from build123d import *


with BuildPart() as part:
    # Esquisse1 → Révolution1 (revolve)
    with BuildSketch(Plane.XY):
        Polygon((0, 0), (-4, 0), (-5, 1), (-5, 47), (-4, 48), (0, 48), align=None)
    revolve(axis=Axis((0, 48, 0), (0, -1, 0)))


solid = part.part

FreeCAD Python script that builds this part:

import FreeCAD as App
import Part
import Sketcher
from FreeCAD import Vector


def add_polygon(sketch, points):
    """Adds a closed chain of lines whose ends are joined by coincident constraints."""
    first, n = sketch.GeometryCount, len(points)
    for a, b in zip(points, points[1:] + points[:1]):
        sketch.addGeometry(Part.LineSegment(App.Vector(*a, 0), App.Vector(*b, 0)), False)
    for i in range(n):
        sketch.addConstraint(Sketcher.Constraint("Coincident", first + i, 2, first + (i + 1) % n, 1))

doc = App.newDocument("Part")
body = doc.addObject("PartDesign::Body", "Body")

# Sketch on XY plane
sketch1 = body.newObject("Sketcher::SketchObject", "Sketch")
sketch1.AttachmentSupport = (doc.getObject("XY_Plane"), [""])
sketch1.MapMode = "FlatFace"
add_polygon(sketch1, [(-4, 0), (0, 0), (0, 48), (-4, 48), (-5, 47), (-5, 1)])  # lines 0-5
sketch1.addConstraint([
    Sketcher.Constraint("Horizontal", 0),
    Sketcher.Constraint("Vertical", 1),
    Sketcher.Constraint("Horizontal", 2),
    Sketcher.Constraint("Vertical", 4),
    Sketcher.Constraint("Coincident", 0, 2, -1, 1),
    Sketcher.Constraint("Perpendicular", 3, 5),
    Sketcher.Constraint("Vertical", 2, 2, 5, 2),
    Sketcher.Constraint("Equal", 3, 5),
    Sketcher.Constraint("DistanceX", 0, 1, 0, 2, 4.0),
    Sketcher.Constraint("DistanceY", 1, 1, 1, 2, 48.0),
    Sketcher.Constraint("DistanceY", 4, 2, 4, 1, 46.0),
])
revolution = body.newObject("PartDesign::Revolution", "Revolution")
revolution.Profile = sketch1
revolution.ReferenceAxis = (sketch1, ["V_Axis"])
revolution.Angle = 360

doc.recompute()
